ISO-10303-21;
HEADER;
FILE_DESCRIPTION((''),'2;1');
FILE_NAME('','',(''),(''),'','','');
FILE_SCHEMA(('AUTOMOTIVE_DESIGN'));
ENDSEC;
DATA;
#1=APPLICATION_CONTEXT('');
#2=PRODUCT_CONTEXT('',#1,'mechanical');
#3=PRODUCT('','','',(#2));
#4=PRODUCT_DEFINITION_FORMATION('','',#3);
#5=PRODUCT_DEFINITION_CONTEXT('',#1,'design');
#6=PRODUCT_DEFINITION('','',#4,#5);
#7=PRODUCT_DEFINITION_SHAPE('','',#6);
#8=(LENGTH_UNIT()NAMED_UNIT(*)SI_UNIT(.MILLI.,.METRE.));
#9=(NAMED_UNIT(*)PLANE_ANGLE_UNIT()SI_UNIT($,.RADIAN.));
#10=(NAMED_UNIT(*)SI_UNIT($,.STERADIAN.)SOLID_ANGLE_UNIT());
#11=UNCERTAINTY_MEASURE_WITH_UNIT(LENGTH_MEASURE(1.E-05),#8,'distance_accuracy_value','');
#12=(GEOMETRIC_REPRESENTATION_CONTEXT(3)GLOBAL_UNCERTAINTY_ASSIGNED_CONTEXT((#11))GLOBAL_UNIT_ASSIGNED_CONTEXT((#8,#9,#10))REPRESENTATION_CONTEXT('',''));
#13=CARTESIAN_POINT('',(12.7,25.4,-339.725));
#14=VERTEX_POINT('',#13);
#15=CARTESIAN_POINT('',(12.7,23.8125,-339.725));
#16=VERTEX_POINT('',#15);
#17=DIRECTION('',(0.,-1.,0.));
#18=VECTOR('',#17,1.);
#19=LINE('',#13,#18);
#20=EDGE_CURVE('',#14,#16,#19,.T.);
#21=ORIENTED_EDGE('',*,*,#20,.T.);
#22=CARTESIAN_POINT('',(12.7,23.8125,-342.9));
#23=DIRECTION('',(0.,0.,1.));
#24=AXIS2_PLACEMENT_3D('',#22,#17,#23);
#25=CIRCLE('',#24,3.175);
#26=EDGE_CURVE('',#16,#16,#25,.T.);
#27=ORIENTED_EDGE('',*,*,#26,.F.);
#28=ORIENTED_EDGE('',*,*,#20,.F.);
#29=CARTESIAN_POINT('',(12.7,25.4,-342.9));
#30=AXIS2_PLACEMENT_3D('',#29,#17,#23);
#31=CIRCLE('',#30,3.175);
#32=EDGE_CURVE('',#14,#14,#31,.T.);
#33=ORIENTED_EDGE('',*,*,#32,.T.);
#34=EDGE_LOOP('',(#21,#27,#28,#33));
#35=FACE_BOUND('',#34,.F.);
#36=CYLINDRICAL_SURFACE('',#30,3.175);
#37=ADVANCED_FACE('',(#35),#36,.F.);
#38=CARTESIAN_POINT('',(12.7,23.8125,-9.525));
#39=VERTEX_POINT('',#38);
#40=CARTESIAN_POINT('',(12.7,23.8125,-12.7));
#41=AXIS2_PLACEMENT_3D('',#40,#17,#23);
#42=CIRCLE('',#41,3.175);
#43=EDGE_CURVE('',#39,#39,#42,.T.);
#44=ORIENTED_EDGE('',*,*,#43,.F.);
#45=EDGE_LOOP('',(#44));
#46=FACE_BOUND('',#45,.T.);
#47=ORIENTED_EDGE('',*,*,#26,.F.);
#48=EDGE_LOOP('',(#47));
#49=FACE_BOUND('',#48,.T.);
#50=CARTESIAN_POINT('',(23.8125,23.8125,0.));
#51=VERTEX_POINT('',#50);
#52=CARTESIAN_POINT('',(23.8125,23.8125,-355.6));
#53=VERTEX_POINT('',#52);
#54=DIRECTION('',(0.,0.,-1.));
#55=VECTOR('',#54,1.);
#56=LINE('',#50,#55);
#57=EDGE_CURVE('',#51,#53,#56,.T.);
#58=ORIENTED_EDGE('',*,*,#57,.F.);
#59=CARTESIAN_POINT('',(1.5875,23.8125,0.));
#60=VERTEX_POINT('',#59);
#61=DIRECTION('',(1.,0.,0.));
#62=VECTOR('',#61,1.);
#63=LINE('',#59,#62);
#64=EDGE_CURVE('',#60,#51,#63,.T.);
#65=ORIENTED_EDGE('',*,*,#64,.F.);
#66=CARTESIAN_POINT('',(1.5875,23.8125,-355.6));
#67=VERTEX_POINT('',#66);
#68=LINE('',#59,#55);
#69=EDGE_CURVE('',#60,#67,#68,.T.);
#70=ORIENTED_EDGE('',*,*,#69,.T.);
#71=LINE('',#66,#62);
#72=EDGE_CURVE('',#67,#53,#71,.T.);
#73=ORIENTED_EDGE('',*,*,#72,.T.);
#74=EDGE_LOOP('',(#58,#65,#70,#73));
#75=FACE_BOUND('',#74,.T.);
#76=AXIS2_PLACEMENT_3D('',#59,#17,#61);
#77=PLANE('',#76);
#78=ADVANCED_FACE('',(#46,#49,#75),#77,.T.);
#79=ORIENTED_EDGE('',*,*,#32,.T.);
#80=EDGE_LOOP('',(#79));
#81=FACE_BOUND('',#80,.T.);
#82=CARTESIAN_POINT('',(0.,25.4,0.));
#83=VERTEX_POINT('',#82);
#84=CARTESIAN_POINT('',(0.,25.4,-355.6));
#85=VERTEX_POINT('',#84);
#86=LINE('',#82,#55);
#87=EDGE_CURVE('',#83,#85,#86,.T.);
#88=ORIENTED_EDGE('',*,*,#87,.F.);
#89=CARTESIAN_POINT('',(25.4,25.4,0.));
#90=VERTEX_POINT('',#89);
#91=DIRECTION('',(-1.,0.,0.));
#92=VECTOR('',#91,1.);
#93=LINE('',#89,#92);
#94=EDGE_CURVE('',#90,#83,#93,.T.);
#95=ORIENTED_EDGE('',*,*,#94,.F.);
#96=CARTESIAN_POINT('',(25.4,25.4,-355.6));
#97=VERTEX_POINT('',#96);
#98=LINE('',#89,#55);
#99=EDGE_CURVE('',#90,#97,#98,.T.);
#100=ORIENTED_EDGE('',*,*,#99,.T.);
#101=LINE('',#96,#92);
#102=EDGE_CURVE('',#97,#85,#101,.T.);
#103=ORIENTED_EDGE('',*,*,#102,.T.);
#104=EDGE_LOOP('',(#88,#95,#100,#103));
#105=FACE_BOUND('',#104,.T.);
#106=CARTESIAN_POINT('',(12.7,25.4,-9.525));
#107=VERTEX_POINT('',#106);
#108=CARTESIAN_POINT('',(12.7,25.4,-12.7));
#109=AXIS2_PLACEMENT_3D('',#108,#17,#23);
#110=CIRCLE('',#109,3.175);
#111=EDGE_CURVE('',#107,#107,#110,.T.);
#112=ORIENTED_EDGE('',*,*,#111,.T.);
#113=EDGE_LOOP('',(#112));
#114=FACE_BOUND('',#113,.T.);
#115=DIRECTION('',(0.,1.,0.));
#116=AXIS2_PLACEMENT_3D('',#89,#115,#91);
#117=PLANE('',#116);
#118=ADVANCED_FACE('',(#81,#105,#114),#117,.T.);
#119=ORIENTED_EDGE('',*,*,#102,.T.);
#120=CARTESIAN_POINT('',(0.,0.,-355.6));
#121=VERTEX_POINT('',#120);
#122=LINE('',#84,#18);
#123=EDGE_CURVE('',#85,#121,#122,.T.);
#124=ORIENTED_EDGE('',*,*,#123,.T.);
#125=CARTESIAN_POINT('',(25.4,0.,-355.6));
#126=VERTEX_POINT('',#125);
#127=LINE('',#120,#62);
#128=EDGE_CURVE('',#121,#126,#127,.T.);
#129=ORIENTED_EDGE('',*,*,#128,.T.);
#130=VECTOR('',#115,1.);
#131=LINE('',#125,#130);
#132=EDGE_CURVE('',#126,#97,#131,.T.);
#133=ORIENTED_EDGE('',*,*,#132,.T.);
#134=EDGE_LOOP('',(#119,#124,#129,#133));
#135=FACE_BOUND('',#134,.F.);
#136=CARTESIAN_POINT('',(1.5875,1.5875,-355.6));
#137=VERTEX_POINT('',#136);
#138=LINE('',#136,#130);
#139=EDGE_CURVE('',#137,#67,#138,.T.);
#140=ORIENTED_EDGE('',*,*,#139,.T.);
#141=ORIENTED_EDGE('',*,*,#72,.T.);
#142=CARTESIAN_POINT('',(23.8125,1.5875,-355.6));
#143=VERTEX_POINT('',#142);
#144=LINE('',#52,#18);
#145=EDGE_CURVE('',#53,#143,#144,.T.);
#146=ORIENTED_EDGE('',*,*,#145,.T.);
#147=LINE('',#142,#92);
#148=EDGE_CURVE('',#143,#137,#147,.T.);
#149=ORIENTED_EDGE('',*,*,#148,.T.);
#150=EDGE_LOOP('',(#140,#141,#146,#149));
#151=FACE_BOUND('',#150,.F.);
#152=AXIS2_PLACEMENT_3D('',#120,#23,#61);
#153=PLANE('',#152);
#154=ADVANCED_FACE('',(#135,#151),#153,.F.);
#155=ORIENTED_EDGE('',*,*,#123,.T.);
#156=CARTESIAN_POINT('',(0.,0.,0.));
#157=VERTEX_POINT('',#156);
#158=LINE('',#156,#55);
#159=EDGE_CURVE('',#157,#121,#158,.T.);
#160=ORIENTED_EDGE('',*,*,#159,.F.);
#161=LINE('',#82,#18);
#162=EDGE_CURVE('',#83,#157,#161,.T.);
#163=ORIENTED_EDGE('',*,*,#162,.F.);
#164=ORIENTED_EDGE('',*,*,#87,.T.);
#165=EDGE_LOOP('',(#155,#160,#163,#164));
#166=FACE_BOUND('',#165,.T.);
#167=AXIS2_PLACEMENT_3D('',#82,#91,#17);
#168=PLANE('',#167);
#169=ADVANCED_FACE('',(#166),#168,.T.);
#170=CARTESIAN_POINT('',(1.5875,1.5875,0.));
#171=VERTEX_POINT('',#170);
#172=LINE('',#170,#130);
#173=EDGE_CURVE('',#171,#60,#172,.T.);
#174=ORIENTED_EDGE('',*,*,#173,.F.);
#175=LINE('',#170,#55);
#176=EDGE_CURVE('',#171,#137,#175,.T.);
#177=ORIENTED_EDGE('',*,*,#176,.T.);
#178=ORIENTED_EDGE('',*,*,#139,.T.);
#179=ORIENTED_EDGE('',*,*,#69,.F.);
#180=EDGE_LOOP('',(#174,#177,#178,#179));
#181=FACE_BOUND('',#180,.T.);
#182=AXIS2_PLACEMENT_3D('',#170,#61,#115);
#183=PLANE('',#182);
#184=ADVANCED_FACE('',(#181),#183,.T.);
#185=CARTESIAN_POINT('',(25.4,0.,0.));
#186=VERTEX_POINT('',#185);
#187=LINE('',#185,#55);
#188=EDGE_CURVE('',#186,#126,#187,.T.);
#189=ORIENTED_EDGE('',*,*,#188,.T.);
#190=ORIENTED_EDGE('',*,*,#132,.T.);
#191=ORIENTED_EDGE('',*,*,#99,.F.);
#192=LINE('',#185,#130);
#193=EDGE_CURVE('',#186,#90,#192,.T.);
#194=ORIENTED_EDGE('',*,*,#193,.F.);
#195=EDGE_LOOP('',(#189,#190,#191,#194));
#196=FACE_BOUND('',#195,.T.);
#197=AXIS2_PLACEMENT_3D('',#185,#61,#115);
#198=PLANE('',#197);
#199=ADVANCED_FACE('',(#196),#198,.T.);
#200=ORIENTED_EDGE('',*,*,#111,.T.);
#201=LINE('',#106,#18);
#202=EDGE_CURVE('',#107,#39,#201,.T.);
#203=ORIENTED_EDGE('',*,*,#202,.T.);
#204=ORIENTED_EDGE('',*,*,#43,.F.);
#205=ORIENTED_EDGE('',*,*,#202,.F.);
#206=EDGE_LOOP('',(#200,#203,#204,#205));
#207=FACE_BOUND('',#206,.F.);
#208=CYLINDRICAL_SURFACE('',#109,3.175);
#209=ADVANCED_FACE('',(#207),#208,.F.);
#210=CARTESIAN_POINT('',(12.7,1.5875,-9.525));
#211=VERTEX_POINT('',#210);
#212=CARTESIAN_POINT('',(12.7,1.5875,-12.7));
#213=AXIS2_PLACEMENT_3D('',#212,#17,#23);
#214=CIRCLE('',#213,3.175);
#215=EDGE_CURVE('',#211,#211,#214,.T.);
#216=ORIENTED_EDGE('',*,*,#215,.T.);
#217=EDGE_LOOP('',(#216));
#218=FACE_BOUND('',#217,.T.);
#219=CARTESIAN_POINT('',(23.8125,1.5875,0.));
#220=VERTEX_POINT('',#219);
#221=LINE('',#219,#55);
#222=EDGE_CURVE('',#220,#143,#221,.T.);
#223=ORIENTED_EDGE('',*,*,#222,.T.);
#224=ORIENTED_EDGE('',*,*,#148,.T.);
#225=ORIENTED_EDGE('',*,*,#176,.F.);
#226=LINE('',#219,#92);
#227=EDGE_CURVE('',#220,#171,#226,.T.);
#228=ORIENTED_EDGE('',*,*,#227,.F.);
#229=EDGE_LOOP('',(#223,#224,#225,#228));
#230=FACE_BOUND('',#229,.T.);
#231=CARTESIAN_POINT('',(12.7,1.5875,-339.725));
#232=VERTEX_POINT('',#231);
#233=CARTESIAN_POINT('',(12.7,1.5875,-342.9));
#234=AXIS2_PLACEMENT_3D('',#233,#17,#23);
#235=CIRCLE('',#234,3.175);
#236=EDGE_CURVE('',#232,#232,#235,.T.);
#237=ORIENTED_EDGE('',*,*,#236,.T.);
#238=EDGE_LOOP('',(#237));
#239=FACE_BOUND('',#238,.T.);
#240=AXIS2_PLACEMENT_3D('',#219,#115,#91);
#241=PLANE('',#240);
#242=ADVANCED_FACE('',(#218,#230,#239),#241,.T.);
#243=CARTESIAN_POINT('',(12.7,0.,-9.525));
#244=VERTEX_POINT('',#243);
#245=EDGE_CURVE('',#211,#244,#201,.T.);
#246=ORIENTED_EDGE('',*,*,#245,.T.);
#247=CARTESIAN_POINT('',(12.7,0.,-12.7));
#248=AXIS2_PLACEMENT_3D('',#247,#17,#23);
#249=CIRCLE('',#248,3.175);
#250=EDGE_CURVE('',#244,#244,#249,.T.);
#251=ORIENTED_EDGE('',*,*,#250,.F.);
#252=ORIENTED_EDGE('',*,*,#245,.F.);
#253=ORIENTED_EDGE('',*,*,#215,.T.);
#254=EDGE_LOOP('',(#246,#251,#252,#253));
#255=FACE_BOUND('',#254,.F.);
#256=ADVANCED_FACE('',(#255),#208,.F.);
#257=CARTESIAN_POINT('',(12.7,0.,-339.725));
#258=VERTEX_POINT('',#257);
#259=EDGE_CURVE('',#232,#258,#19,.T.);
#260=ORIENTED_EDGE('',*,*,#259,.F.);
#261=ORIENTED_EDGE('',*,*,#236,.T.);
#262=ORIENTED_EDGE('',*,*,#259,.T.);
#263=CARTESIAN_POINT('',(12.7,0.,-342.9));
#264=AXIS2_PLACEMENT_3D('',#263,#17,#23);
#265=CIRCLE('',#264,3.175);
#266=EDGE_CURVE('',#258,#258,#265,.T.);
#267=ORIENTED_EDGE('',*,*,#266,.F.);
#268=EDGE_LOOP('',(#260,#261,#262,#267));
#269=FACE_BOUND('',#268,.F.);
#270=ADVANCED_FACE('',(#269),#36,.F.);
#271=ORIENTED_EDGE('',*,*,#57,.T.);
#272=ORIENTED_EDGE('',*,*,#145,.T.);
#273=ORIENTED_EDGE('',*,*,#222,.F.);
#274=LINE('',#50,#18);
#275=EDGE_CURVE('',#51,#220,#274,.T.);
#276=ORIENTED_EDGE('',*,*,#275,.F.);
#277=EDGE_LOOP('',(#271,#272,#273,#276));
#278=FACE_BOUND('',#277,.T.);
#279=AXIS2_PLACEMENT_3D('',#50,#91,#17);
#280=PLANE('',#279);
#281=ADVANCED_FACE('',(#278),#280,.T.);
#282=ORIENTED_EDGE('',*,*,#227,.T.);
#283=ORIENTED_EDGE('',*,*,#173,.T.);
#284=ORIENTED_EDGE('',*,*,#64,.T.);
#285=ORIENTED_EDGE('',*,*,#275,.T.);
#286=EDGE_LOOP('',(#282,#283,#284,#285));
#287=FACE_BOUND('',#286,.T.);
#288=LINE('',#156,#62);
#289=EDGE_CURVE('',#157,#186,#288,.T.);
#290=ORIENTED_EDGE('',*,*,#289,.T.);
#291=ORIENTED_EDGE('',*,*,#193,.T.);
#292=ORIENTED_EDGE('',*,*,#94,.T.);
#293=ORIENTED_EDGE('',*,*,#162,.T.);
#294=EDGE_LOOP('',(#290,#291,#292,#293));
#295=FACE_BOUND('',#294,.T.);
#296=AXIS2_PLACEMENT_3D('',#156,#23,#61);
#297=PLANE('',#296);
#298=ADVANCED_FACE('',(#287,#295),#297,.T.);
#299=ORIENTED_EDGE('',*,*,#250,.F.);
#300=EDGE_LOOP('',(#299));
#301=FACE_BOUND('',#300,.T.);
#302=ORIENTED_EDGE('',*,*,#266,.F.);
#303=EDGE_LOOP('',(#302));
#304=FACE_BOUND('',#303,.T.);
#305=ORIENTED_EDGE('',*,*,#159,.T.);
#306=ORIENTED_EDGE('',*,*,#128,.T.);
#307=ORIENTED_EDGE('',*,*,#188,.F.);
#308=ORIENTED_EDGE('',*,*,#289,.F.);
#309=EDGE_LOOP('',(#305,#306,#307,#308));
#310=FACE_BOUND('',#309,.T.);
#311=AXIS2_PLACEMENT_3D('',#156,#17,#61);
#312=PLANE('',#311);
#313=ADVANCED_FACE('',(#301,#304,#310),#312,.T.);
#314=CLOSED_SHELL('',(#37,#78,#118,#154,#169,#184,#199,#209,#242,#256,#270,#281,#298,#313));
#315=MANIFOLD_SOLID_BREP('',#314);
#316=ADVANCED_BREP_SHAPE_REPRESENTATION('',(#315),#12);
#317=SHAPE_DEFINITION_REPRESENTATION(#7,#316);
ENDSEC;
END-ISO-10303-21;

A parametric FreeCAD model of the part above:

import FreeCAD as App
import Part
import Sketcher
from FreeCAD import Vector
Q = App.Units.Quantity


def add_polygon(sketch, points):
    """Adds a closed chain of lines whose ends are joined by coincident constraints."""
    first, n = sketch.GeometryCount, len(points)
    for a, b in zip(points, points[1:] + points[:1]):
        sketch.addGeometry(Part.LineSegment(App.Vector(*a, 0), App.Vector(*b, 0)), False)
    for i in range(n):
        sketch.addConstraint(Sketcher.Constraint("Coincident", first + i, 2, first + (i + 1) % n, 1))

doc = App.newDocument("Part")
body = doc.addObject("PartDesign::Body", "Body")

sketch1 = body.newObject("Sketcher::SketchObject", "Sketch")
sketch1.AttachmentSupport = (doc.getObject("XY_Plane"), [""])
sketch1.MapMode = "FlatFace"
add_polygon(sketch1, [(0, 25), (0, 0), (25, 0), (25, 25)])
add_polygon(sketch1, [(2, 2), (2, 24), (24, 24), (24, 2)])
sketch1.addConstraint(Sketcher.Constraint("Vertical", 0))
sketch1.addConstraint(Sketcher.Constraint("Horizontal", 1))
sketch1.addConstraint(Sketcher.Constraint("Vertical", 2))
sketch1.addConstraint(Sketcher.Constraint("Horizontal", 3))
sketch1.addConstraint(Sketcher.Constraint("Vertical", 4))
sketch1.addConstraint(Sketcher.Constraint("Horizontal", 5))
sketch1.addConstraint(Sketcher.Constraint("Vertical", 6))
sketch1.addConstraint(Sketcher.Constraint("Horizontal", 7))
sketch1.addConstraint(Sketcher.Constraint("Coincident", 0, 2, -1, 1))
sketch1.addConstraint(Sketcher.Constraint("Equal", 3, 0))
sketch1.addConstraint(Sketcher.Constraint("Equal", 7, 4))
sketch1.addConstraint(Sketcher.Constraint("DistanceX", 1, 1, 1, 2, Q("1 in")))
sketch1.addConstraint(Sketcher.Constraint("DistanceX", -1, 1, 4, 2, Q("0.0625 in")))
sketch1.addConstraint(Sketcher.Constraint("DistanceY", -1, 1, 6, 2, Q("0.0625 in")))
sketch1.addConstraint(Sketcher.Constraint("DistanceY", 4, 2, 3, 2, Q("0.0625 in")))
pad1 = body.newObject("PartDesign::Pad", "Pad")
pad1.Profile = sketch1
pad1.Length = Q("14 in")
pad1.Reversed = True

sketch2 = body.newObject("Sketcher::SketchObject", "Sketch001")
sketch2.AttachmentSupport = (doc.getObject("XZ_Plane"), [""])
sketch2.MapMode = "FlatFace"
sketch2.AttachmentOffset = App.Placement(Vector(0, 0, -1 * 25.4), App.Rotation())
sketch2.addGeometry(Part.Circle(Vector(12.7, -12.7, 0), Vector(0, 0, 1), 3.2), False)
sketch2.addGeometry(Part.Circle(Vector(12.7, -342.9, 0), Vector(0, 0, 1), 3.2), False)
sketch2.addConstraint(Sketcher.Constraint("Equal", 0, 1))
sketch2.addConstraint(Sketcher.Constraint("Vertical", 0, 3, 1, 3))
sketch2.addConstraint(Sketcher.Constraint("Diameter", 0, Q("0.25 in")))
sketch2.addConstraint(Sketcher.Constraint("DistanceY", 1, 3, 0, 3, Q("13 in")))
sketch2.addConstraint(Sketcher.Constraint("DistanceX", -1, 1, 0, 3, Q("0.5 in")))
sketch2.addConstraint(Sketcher.Constraint("DistanceY", 0, 3, -1, 1, Q("0.5 in")))
doc.recompute()
hole = body.newObject("PartDesign::Hole", "Hole")
hole.Profile = sketch2
hole.ThreadType = "None"
hole.Diameter = Q("0.25 in")
hole.DepthType = "Dimension"
hole.Depth = Q("1 in")
hole.DrillPoint = "Angled"
hole.DrillPointAngle = 118
hole.Reversed = True

doc.recompute()
